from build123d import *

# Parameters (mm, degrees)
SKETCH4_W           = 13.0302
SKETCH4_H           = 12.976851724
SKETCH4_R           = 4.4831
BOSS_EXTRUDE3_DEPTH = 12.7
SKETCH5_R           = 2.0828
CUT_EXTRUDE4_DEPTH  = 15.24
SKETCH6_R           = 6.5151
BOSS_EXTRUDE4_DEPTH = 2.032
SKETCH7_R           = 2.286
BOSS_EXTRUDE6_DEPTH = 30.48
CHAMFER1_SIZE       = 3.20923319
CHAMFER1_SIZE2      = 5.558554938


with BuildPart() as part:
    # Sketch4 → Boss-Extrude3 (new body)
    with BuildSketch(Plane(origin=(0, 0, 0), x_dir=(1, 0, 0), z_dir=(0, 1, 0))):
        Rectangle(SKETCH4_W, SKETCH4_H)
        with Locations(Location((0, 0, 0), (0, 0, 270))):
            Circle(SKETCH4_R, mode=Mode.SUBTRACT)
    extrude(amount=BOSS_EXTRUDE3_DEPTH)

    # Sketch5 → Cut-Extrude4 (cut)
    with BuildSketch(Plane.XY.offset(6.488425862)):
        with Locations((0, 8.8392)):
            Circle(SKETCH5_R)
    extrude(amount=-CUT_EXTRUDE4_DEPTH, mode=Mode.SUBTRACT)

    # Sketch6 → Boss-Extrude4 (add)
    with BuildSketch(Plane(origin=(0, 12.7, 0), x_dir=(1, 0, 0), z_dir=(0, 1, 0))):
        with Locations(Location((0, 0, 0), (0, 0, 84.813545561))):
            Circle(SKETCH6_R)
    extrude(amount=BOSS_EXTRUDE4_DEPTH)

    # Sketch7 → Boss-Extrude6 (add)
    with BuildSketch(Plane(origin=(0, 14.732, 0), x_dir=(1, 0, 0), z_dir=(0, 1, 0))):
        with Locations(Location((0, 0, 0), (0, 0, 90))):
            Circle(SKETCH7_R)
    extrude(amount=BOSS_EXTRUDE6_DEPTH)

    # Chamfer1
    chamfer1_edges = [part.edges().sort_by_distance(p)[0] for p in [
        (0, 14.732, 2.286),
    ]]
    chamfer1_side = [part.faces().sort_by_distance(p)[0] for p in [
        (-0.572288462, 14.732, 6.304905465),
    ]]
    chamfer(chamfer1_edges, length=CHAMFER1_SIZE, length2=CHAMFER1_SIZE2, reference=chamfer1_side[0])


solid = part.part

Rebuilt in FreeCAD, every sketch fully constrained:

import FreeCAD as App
import Part
import Sketcher
Q = App.Units.Quantity


def edges_at(feature, points):
    """Names of the edges that pass closest to the given points."""
    edges = feature.Shape.Edges
    near = lambda p: min(range(len(edges)), key=lambda i: edges[i].distToShape(Part.Vertex(*p))[0])
    return sorted({f"Edge{near(p) + 1}" for p in points})


def add_polygon(sketch, points):
    """Adds a closed chain of lines whose ends are joined by coincident constraints."""
    first, n = sketch.GeometryCount, len(points)
    for a, b in zip(points, points[1:] + points[:1]):
        sketch.addGeometry(Part.LineSegment(App.Vector(*a, 0), App.Vector(*b, 0)), False)
    for i in range(n):
        sketch.addConstraint(Sketcher.Constraint("Coincident", first + i, 2, first + (i + 1) % n, 1))

doc = App.newDocument("Part")
params = doc.addObject("Spreadsheet::Sheet", "Params")
for row, (alias, value) in enumerate([
    ("sketch1_diameter", "0.353 in"),
    ("sketch1_width", "0.513 in"),
    ("pad1_length", "0.5 in"),
    ("sketch2_diameter", "0.164 in"),
    ("pocket1_length", "0.6 in"),
    ("sketch3_diameter", "0.513 in"),
    ("pad2_length", "0.08 in"),
    ("sketch4_diameter", "0.18 in"),
    ("pad3_length", "1.2 in"),
    ("chamfer_size", "3.209233 mm"),
    ("chamfer_size2", "5.558555 mm"),
], start=1):
    params.set(f"A{row}", alias)
    params.set(f"B{row}", "=" + value)
    params.setAlias(f"B{row}", alias)

body = doc.addObject("PartDesign::Body", "Body")

sketch1 = body.newObject("Sketcher::SketchObject", "Sketch")
sketch1.AttachmentSupport = (doc.getObject("XZ_Plane"), [""])
sketch1.MapMode = "FlatFace"
add_polygon(sketch1, [(-6.5, -6.5), (-6.5, 6.5), (6.5, 6.5), (6.5, -6.5)])
sketch1.addGeometry(Part.Circle(App.Vector(0, 0, 0), App.Vector(0, 0, 1), 4.5), False)
sketch1.addConstraint([
    Sketcher.Constraint("Vertical", 0),
    Sketcher.Constraint("Horizontal", 1),
    Sketcher.Constraint("Vertical", 2),
    Sketcher.Constraint("Horizontal", 3),
    Sketcher.Constraint("Coincident", 4, 3, -1, 1),
    Sketcher.Constraint("Symmetric", 0, 2, 2, 2, -1, 1),
    Sketcher.Constraint("Diameter", 4, Q("0.353 in")),
    Sketcher.Constraint("DistanceX", 1, 1, 1, 2, Q("0.513 in")),
    Sketcher.Constraint("DistanceY", 0, 1, 0, 2, Q("12.976852 mm")),
])
sketch1.setExpression("Constraints[10]", "Params.sketch1_diameter")
sketch1.setExpression("Constraints[11]", "Params.sketch1_width")
pad1 = body.newObject("PartDesign::Pad", "Pad")
pad1.Profile = sketch1
pad1.setExpression("Length", "Params.pad1_length")
pad1.Reversed = True

sketch2 = body.newObject("Sketcher::SketchObject", "Sketch001")
sketch2.AttachmentSupport = (doc.getObject("XY_Plane"), [""])
sketch2.MapMode = "FlatFace"
sketch2.AttachmentOffset = App.Placement(App.Vector(0, 0, 6.488426), App.Rotation())
sketch2.addGeometry(Part.Circle(App.Vector(0, 8.8, 0), App.Vector(0, 0, 1), 2.1), False)
sketch2.addConstraint([
    Sketcher.Constraint("PointOnObject", 0, 3, -2),
    Sketcher.Constraint("Diameter", 0, Q("0.164 in")),
    Sketcher.Constraint("DistanceY", -1, 1, 0, 3, Q("0.348 in")),
])
sketch2.setExpression("Constraints[1]", "Params.sketch2_diameter")
pocket1 = body.newObject("PartDesign::Pocket", "Pocket")
pocket1.Profile = sketch2
pocket1.setExpression("Length", "Params.pocket1_length")

sketch3 = body.newObject("Sketcher::SketchObject", "Sketch002")
sketch3.AttachmentSupport = (doc.getObject("XZ_Plane"), [""])
sketch3.MapMode = "FlatFace"
sketch3.AttachmentOffset = App.Placement(App.Vector(0, 0, -0.5 * 25.4), App.Rotation())
sketch3.addGeometry(Part.Circle(App.Vector(0, 0, 0), App.Vector(0, 0, 1), 7), False)
sketch3.addConstraint([
    Sketcher.Constraint("Coincident", 0, 3, -1, 1),
    Sketcher.Constraint("Diameter", 0, Q("0.513 in")),
])
sketch3.setExpression("Constraints[1]", "Params.sketch3_diameter")
pad2 = body.newObject("PartDesign::Pad", "Pad001")
pad2.Profile = sketch3
pad2.setExpression("Length", "Params.pad2_length")
pad2.Reversed = True

sketch4 = body.newObject("Sketcher::SketchObject", "Sketch003")
sketch4.AttachmentSupport = (doc.getObject("XZ_Plane"), [""])
sketch4.MapMode = "FlatFace"
sketch4.AttachmentOffset = App.Placement(App.Vector(0, 0, -0.58 * 25.4), App.Rotation())
sketch4.addGeometry(Part.Circle(App.Vector(0, 0, 0), App.Vector(0, 0, 1), 2.3), False)
sketch4.addConstraint([
    Sketcher.Constraint("Coincident", 0, 3, -1, 1),
    Sketcher.Constraint("Diameter", 0, Q("0.18 in")),
])
sketch4.setExpression("Constraints[1]", "Params.sketch4_diameter")
pad3 = body.newObject("PartDesign::Pad", "Pad002")
pad3.Profile = sketch4
pad3.setExpression("Length", "Params.pad3_length")
pad3.Reversed = True
doc.recompute()

chamfer = body.newObject("PartDesign::Chamfer", "Chamfer")
chamfer.Base = (pad3, edges_at(pad3, [(0, 14.732, 2.286)]))
chamfer.ChamferType = "Two distances"
chamfer.setExpression("Size", "Params.chamfer_size")
chamfer.setExpression("Size2", "Params.chamfer_size2")

doc.recompute()
